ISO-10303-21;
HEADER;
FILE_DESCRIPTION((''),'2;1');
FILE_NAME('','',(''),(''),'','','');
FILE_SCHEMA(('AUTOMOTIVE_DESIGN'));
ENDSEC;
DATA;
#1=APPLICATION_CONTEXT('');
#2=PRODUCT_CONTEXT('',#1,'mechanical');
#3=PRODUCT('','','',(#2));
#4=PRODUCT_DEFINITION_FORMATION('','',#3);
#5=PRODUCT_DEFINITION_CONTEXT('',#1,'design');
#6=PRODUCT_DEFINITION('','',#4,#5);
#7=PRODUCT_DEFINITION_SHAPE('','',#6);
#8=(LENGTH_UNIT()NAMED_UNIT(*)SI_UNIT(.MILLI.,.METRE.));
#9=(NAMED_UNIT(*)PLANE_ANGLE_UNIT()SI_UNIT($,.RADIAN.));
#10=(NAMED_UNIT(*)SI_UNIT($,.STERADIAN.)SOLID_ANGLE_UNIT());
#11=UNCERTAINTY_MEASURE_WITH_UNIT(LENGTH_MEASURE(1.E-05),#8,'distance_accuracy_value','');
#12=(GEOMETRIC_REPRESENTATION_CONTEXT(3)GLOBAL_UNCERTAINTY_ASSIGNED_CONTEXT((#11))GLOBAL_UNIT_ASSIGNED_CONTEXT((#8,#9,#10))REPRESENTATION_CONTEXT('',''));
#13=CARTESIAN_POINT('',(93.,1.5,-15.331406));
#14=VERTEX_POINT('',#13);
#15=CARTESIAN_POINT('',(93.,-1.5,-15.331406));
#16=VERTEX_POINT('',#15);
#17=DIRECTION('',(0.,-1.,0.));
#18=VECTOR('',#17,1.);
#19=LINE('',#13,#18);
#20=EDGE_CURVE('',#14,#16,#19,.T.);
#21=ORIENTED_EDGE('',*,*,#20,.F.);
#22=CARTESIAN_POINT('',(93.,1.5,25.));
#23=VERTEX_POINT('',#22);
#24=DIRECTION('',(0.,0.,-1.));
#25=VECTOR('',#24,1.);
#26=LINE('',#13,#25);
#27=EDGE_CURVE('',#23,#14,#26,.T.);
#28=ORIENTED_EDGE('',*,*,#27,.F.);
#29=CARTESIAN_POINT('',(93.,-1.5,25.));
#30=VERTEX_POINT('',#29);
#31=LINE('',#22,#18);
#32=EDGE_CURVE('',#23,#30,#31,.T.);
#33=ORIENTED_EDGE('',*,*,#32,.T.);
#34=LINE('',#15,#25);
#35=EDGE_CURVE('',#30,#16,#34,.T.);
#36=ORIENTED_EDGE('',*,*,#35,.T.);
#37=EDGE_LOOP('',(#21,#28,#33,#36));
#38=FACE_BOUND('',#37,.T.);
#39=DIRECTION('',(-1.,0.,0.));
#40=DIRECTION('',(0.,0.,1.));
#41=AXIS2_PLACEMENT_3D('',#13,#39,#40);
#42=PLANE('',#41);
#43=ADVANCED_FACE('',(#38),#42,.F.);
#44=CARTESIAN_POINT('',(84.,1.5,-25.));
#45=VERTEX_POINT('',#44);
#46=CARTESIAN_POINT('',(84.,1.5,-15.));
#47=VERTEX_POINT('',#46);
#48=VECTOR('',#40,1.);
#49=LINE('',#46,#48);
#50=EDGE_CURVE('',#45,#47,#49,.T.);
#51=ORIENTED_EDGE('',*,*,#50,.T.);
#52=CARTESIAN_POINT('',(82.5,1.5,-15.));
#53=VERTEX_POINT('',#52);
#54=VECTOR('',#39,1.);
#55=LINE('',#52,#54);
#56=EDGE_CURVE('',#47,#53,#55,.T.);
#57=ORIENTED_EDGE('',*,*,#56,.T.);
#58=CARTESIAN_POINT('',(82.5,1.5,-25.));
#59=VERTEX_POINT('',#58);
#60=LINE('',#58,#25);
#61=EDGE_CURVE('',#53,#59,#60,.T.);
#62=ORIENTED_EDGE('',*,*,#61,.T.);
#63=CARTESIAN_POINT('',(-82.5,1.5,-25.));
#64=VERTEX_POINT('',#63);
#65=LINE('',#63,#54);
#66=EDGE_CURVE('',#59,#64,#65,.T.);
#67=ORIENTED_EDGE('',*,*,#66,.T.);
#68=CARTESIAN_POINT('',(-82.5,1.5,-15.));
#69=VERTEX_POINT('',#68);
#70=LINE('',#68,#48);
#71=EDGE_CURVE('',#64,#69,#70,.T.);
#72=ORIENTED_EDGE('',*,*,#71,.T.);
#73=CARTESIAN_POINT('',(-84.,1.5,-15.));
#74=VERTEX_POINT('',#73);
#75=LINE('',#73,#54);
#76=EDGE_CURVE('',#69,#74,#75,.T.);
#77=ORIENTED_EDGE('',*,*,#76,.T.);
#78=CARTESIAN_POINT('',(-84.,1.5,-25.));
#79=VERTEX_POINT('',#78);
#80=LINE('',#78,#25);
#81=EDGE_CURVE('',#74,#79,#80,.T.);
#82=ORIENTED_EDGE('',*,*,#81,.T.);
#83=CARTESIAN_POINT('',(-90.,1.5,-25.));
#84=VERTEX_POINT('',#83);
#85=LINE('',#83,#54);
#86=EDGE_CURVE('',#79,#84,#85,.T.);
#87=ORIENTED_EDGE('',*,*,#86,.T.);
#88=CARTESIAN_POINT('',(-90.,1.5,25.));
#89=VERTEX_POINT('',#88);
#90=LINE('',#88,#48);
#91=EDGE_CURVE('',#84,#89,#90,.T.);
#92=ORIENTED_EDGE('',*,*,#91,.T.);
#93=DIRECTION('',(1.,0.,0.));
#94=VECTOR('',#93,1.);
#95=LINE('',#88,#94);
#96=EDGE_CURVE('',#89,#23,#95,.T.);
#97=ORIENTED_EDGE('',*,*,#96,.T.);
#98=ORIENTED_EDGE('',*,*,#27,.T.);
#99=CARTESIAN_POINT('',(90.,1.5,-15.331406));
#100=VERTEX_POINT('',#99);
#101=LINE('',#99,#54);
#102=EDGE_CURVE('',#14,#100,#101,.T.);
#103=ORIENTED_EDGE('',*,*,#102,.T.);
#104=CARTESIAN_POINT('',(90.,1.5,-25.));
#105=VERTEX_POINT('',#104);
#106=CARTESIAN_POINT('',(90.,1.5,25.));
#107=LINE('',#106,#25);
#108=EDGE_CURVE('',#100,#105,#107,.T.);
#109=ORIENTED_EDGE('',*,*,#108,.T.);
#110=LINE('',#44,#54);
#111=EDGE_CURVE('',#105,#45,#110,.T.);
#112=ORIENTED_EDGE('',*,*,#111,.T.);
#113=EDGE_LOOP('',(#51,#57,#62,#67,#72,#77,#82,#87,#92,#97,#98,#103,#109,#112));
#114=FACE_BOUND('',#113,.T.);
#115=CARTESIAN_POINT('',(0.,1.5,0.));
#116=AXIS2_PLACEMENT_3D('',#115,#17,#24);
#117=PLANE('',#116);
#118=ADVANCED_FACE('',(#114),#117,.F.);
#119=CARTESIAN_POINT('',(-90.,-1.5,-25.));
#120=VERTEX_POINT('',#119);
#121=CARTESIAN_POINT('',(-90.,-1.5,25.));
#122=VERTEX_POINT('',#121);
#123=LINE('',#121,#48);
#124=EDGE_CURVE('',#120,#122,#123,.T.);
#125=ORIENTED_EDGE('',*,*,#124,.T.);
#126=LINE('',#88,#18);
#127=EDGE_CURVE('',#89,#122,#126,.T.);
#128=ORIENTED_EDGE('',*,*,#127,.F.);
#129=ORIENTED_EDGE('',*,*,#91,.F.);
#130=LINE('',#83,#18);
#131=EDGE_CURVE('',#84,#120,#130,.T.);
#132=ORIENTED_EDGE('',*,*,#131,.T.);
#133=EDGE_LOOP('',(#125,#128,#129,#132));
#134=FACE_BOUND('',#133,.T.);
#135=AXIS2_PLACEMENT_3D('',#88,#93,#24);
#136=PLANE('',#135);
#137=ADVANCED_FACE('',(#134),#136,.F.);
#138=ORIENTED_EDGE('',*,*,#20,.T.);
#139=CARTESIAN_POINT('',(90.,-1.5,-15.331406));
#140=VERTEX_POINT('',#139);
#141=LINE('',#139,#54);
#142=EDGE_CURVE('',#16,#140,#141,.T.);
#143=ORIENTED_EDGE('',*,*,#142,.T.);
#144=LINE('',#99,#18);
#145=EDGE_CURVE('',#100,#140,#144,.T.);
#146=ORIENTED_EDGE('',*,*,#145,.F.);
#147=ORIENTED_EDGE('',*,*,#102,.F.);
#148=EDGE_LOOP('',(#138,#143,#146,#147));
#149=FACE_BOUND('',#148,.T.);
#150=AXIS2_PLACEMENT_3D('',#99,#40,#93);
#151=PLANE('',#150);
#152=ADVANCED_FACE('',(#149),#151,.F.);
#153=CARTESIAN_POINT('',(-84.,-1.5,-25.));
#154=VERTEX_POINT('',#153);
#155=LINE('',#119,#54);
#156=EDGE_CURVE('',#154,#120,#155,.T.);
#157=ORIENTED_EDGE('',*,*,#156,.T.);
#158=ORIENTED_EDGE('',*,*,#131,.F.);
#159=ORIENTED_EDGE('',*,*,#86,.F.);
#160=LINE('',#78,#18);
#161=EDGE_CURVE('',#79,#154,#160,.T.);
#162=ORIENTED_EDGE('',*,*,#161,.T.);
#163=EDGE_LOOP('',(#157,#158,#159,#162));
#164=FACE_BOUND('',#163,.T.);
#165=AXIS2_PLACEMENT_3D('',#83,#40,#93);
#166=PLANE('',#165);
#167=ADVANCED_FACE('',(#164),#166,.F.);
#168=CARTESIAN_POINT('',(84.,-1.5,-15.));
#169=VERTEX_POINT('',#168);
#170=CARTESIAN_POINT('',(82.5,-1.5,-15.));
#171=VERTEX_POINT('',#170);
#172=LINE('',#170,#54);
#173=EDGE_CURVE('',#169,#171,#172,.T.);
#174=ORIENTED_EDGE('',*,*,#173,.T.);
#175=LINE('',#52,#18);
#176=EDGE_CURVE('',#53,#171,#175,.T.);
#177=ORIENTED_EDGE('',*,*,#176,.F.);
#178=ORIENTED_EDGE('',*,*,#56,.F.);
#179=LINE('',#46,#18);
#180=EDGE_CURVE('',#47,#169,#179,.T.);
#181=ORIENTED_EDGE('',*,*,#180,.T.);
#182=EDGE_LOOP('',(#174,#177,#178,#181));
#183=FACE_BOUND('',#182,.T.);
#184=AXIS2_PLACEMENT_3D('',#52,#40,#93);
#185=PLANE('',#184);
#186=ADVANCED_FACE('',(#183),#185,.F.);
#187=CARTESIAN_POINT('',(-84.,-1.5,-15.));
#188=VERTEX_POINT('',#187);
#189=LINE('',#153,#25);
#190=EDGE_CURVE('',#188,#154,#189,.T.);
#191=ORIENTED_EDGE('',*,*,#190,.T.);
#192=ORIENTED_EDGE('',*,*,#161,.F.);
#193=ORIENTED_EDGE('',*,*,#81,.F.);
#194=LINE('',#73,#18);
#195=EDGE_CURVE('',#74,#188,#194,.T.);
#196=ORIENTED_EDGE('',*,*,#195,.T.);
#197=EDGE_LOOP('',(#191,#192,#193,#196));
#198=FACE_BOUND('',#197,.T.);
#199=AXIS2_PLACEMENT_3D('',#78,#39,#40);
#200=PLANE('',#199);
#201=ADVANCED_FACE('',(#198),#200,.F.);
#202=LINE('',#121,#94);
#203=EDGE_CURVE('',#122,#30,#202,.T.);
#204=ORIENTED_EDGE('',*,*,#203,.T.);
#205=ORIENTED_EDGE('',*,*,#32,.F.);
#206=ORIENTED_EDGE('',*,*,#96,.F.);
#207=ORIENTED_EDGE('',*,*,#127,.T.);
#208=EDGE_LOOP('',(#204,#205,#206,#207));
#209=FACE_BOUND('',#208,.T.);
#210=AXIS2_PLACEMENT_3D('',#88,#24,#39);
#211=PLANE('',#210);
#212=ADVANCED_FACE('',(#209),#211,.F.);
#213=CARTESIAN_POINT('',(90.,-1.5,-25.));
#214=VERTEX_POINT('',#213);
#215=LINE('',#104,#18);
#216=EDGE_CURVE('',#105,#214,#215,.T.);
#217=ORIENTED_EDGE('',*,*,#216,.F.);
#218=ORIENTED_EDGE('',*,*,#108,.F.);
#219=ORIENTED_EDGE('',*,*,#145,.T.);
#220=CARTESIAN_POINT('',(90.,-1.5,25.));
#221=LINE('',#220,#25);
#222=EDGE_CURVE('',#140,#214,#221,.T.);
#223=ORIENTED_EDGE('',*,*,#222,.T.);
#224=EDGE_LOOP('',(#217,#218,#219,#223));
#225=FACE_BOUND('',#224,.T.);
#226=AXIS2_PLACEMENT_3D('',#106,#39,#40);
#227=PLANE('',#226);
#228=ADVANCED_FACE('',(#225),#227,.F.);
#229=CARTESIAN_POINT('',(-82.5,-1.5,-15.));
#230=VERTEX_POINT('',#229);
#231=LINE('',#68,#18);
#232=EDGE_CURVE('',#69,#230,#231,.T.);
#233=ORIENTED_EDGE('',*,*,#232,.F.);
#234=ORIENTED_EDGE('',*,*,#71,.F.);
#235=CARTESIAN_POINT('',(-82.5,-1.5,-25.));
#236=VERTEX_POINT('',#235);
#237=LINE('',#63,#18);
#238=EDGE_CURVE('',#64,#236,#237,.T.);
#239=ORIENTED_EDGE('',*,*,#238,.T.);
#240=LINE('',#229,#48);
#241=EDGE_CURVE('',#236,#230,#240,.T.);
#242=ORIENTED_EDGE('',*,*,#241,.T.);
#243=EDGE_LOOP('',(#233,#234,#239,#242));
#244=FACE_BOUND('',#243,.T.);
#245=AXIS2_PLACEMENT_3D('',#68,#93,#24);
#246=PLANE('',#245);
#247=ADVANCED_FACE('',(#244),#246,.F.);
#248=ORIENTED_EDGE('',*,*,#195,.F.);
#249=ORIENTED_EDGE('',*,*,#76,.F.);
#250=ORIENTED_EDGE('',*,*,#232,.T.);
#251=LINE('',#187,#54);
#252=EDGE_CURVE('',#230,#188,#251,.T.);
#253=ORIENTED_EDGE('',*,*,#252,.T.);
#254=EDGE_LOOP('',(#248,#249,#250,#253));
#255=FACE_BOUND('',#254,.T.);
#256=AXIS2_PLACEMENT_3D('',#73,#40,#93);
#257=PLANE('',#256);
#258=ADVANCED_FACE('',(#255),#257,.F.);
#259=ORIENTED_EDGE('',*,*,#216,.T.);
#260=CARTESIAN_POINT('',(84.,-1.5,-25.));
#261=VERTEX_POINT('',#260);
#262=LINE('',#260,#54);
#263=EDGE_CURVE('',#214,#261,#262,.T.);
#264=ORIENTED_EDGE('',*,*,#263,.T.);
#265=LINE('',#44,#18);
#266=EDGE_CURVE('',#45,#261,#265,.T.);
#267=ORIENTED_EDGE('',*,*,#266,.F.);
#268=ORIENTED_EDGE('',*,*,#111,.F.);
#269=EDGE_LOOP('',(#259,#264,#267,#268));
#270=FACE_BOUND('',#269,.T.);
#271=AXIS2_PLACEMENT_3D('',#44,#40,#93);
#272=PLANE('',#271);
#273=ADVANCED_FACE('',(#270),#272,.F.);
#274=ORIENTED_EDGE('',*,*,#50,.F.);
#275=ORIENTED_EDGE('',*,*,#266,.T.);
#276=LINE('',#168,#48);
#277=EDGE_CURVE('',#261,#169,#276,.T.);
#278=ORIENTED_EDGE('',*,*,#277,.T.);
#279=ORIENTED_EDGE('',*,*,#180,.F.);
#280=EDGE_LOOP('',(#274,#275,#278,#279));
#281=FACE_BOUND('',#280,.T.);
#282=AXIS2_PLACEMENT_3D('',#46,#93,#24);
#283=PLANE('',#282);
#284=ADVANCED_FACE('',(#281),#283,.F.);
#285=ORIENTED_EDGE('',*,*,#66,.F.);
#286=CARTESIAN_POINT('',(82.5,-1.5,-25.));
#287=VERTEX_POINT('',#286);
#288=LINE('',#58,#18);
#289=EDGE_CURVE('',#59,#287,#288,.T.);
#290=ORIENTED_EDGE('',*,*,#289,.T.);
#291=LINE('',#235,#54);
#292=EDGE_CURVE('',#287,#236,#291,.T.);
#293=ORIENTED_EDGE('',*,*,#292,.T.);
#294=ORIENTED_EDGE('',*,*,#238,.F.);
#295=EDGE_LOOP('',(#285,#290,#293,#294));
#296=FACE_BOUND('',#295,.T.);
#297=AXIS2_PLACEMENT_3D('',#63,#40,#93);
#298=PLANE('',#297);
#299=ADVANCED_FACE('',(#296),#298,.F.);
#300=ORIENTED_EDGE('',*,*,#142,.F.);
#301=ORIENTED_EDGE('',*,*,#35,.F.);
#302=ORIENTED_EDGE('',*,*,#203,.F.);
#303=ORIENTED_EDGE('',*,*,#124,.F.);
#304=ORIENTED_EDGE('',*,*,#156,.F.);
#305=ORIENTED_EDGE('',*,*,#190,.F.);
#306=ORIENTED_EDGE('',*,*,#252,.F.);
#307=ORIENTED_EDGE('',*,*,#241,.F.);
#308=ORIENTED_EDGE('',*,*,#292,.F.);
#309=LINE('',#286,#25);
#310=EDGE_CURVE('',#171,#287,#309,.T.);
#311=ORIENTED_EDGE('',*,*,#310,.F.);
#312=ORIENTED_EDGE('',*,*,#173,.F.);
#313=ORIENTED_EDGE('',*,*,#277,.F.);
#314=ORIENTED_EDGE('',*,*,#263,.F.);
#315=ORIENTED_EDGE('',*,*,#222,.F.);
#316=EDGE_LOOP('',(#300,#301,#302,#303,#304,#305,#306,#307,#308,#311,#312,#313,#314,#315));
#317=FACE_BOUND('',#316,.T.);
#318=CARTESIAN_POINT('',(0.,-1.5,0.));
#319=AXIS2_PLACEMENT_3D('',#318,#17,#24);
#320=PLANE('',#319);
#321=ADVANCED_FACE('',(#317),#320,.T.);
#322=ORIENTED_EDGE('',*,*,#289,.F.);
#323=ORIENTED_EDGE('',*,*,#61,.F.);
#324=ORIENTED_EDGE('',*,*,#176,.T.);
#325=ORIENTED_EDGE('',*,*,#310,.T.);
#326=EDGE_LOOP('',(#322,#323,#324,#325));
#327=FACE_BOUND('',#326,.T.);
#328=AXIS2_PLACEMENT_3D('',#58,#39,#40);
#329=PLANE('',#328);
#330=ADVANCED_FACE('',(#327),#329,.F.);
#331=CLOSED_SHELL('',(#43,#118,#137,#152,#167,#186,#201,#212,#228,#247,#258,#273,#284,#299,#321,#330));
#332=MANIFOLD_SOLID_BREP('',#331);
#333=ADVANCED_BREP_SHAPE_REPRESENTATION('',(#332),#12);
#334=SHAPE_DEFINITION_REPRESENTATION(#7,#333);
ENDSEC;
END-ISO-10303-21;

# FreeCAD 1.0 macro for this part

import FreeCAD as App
import Part
import Sketcher
from FreeCAD import Vector
Q = App.Units.Quantity


def add_polygon(sketch, points):
    """Adds a closed chain of lines whose ends are joined by coincident constraints."""
    first, n = sketch.GeometryCount, len(points)
    for a, b in zip(points, points[1:] + points[:1]):
        sketch.addGeometry(Part.LineSegment(App.Vector(*a, 0), App.Vector(*b, 0)), False)
    for i in range(n):
        sketch.addConstraint(Sketcher.Constraint("Coincident", first + i, 2, first + (i + 1) % n, 1))

doc = App.newDocument("Part")
body = doc.addObject("PartDesign::Body", "Body")

sketch1 = body.newObject("Sketcher::SketchObject", "Sketch")
sketch1.AttachmentSupport = (doc.getObject("XZ_Plane"), [""])
sketch1.MapMode = "FlatFace"
add_polygon(sketch1, [(-84, -15), (-84, -25), (-90, -25), (-90, 25), (90, 25), (90, -25), (84, -25), (84, -15), (82.5, -15), (82.5, -25), (-82.5, -25), (-82.5, -15)])
sketch1.addConstraint([
    Sketcher.Constraint("Vertical", 0),
    Sketcher.Constraint("Horizontal", 1),
    Sketcher.Constraint("Vertical", 2),
    Sketcher.Constraint("Horizontal", 3),
    Sketcher.Constraint("Vertical", 4),
    Sketcher.Constraint("Horizontal", 5),
    Sketcher.Constraint("Vertical", 6),
    Sketcher.Constraint("Horizontal", 7),
    Sketcher.Constraint("Vertical", 8),
    Sketcher.Constraint("Horizontal", 9),
    Sketcher.Constraint("Vertical", 10),
    Sketcher.Constraint("Horizontal", 11),
    Sketcher.Constraint("Symmetric", 1, 2, 3, 2, -1, 1),
    Sketcher.Constraint("Symmetric", 0, 2, 5, 2, -2),
    Sketcher.Constraint("Symmetric", 7, 2, 10, 2, -2),
    Sketcher.Constraint("Horizontal", 5, 2, 8, 2),
    Sketcher.Constraint("DistanceX", 1, 2, 1, 1, Q("6 mm")),
    Sketcher.Constraint("DistanceX", 3, 1, 3, 2, Q("180 mm")),
    Sketcher.Constraint("DistanceX", 9, 2, 9, 1, Q("165 mm")),
    Sketcher.Constraint("DistanceY", 0, 2, 0, 1, Q("10 mm")),
    Sketcher.Constraint("DistanceY", 2, 1, 2, 2, Q("50 mm")),
])
pad1 = body.newObject("PartDesign::Pad", "Pad")
pad1.Profile = sketch1
pad1.Length = 3
pad1.Midplane = True

sketch2 = body.newObject("Sketcher::SketchObject", "Sketch001")
sketch2.AttachmentSupport = (doc.getObject("XZ_Plane"), [""])
sketch2.MapMode = "FlatFace"
add_polygon(sketch2, [(90, -15.3), (90, 25), (93, 25), (93, -15.3)])
sketch2.addConstraint([
    Sketcher.Constraint("Vertical", 0),
    Sketcher.Constraint("Horizontal", 1),
    Sketcher.Constraint("Vertical", 2),
    Sketcher.Constraint("Horizontal", 3),
    Sketcher.Constraint("DistanceX", 1, 1, 1, 2, Q("3 mm")),
    Sketcher.Constraint("DistanceX", -1, 1, 0, 2, Q("90 mm")),
    Sketcher.Constraint("DistanceY", -1, 1, 0, 2, Q("25 mm")),
    Sketcher.Constraint("DistanceY", 0, 1, 0, 2, Q("40.331406 mm")),
])
pad2 = body.newObject("PartDesign::Pad", "Pad001")
pad2.Profile = sketch2
pad2.Length = 3
pad2.Midplane = True

doc.recompute()
